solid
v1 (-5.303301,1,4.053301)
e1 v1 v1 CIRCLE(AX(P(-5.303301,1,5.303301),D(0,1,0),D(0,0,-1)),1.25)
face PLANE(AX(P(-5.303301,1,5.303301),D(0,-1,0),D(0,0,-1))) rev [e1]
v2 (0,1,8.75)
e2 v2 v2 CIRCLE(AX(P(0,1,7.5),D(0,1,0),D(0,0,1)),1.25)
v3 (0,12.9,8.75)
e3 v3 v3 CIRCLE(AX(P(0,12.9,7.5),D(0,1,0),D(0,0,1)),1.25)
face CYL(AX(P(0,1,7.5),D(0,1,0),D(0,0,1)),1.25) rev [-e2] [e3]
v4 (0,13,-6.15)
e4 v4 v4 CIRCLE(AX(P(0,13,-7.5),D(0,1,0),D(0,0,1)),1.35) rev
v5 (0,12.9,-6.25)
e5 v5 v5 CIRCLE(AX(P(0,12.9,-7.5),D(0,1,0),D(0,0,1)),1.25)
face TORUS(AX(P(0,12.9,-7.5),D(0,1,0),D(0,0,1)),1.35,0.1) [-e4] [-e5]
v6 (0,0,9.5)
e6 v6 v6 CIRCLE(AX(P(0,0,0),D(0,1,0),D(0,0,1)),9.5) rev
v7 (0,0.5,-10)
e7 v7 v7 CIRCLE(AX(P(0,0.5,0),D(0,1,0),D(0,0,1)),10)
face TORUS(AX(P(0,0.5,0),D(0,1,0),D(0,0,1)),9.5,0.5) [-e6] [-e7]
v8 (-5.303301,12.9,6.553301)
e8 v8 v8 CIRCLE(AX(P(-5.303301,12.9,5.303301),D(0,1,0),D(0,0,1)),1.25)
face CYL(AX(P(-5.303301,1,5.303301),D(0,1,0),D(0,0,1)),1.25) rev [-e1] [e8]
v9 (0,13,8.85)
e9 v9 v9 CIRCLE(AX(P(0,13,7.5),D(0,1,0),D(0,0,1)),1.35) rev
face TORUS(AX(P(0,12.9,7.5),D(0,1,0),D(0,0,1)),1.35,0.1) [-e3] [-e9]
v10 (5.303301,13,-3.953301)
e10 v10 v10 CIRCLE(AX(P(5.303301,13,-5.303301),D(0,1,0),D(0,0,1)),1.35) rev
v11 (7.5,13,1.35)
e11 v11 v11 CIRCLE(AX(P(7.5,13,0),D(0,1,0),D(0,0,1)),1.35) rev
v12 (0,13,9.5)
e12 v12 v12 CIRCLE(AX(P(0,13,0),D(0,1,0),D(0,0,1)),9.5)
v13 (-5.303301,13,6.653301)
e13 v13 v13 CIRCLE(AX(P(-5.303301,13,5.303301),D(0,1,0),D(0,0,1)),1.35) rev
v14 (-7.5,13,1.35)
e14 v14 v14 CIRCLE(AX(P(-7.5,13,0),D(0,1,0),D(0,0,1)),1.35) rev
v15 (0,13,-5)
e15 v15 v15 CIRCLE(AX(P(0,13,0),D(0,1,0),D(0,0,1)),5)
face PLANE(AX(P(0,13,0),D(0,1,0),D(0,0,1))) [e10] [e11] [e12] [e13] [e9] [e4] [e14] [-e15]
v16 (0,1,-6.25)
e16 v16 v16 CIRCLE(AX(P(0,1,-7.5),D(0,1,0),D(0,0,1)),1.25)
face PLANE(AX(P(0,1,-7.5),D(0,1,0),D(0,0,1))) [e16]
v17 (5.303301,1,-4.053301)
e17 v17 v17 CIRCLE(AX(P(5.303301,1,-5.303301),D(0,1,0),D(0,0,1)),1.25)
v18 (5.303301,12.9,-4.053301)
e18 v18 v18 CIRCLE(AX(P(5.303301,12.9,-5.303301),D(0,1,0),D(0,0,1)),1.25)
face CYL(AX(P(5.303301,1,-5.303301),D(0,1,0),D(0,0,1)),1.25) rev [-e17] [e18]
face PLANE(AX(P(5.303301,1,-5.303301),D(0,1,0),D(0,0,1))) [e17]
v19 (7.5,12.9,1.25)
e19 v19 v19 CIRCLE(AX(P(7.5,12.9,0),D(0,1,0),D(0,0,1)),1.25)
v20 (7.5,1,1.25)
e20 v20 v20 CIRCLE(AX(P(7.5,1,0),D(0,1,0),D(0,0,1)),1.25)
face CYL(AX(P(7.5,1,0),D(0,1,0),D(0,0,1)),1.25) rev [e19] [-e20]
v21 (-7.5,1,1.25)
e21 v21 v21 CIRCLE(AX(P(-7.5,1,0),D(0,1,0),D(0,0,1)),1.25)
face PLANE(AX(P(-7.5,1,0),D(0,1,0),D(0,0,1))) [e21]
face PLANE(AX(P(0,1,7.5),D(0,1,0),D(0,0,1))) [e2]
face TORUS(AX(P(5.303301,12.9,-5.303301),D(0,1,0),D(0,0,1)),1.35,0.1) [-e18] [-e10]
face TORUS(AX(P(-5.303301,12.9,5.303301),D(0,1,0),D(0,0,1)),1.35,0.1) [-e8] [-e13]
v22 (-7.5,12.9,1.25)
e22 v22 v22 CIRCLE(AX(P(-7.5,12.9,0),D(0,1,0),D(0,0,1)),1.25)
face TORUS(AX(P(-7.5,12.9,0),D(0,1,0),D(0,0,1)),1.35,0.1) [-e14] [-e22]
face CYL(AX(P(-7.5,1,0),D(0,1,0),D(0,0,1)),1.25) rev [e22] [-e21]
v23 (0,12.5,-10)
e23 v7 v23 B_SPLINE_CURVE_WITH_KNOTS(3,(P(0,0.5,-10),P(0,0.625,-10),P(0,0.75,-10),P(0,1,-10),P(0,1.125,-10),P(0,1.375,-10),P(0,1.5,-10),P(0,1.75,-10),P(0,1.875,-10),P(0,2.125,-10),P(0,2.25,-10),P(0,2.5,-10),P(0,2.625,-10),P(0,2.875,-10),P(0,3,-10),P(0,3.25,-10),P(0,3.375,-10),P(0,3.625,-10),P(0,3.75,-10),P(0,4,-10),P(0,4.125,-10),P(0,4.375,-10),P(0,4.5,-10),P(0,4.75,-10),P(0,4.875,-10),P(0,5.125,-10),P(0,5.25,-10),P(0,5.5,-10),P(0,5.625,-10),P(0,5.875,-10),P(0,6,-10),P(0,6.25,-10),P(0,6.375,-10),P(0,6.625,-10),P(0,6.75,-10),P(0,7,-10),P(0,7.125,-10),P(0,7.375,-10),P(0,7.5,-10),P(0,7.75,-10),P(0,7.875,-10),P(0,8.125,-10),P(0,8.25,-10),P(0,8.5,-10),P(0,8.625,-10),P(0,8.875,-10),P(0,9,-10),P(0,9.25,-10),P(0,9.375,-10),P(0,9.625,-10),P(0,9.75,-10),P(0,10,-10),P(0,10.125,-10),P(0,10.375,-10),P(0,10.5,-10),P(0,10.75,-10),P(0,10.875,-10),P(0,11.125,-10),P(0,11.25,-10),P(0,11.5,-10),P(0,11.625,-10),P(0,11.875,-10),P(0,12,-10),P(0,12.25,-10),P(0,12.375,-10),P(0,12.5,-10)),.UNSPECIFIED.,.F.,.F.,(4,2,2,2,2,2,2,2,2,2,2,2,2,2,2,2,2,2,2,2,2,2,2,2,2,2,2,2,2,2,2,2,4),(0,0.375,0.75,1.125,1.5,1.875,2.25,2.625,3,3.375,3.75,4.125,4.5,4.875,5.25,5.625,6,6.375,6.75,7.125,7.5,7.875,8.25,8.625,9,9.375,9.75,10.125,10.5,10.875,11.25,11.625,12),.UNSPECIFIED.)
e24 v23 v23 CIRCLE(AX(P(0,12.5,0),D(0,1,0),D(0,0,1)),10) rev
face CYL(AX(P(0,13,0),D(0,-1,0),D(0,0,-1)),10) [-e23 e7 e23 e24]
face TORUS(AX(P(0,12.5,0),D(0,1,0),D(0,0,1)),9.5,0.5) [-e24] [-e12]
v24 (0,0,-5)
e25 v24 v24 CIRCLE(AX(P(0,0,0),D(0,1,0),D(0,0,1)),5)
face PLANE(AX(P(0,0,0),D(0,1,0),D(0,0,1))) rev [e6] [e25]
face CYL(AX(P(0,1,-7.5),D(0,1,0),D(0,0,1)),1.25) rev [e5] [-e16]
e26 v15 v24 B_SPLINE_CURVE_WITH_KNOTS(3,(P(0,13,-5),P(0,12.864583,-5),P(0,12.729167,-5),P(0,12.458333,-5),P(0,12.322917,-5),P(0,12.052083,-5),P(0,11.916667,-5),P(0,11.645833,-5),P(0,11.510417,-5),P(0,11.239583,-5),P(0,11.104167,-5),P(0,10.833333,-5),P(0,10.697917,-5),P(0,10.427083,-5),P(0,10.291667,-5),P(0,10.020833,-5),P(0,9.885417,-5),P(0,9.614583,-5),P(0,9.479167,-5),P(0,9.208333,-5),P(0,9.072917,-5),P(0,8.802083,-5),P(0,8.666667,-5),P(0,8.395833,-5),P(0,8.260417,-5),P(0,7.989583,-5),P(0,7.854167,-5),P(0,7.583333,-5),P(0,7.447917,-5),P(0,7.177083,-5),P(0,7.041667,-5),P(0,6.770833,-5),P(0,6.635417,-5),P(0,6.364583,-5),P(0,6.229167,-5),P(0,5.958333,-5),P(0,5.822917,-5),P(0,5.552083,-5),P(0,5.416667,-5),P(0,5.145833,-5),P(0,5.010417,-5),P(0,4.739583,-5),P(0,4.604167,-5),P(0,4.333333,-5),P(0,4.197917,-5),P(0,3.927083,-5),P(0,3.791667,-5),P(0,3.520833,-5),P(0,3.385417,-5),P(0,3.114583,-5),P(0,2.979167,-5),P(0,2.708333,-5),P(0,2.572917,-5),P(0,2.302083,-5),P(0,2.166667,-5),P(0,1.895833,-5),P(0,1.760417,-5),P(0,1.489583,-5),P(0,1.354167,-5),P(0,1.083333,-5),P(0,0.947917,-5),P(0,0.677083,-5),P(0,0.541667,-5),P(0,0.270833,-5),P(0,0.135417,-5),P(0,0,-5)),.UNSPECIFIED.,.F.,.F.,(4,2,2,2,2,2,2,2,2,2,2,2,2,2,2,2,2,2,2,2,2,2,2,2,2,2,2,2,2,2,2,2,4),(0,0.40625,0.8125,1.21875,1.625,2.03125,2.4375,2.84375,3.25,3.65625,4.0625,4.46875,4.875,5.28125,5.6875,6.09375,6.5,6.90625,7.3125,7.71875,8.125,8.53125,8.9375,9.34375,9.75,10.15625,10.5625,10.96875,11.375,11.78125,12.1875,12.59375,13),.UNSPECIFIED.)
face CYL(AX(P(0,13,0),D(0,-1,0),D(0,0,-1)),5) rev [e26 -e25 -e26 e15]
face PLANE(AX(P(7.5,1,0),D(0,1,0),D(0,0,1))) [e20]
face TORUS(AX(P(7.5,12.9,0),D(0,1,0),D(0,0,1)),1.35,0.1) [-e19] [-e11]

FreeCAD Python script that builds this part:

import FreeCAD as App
import Part
import Sketcher
from FreeCAD import Vector
Q = App.Units.Quantity


def edges_at(feature, points):
    """Names of the edges that pass closest to the given points."""
    edges = feature.Shape.Edges
    near = lambda p: min(range(len(edges)), key=lambda i: edges[i].distToShape(Part.Vertex(*p))[0])
    return sorted({f"Edge{near(p) + 1}" for p in points})

doc = App.newDocument("Part")
body = doc.addObject("PartDesign::Body", "Body")

sketch1 = doc.addObject("Sketcher::SketchObject", "Sketch")
body.addObject(sketch1)
sketch1.AttachmentSupport = (doc.XZ_Plane, [""])
sketch1.MapMode = "FlatFace"
sketch1.addGeometry([
    Part.Circle(Vector(0, 0, 0), Vector(0, 0, 1), 10),
    Part.Circle(Vector(0, 0, 0), Vector(0, 0, 1), 5),
], False)
sketch1.addConstraint([
    Sketcher.Constraint("Coincident", 0, 3, -1, 1),
    Sketcher.Constraint("Coincident", 1, 3, -1, 1),
    Sketcher.Constraint("Diameter", 0, Q("20 mm")),
    Sketcher.Constraint("Diameter", 1, Q("10 mm")),
])
pad1 = doc.addObject("PartDesign::Pad", "Pad")
body.addObject(pad1)
pad1.Profile = sketch1
pad1.Length = 13
pad1.Reversed = True

sketch2 = doc.addObject("Sketcher::SketchObject", "Sketch001")
body.addObject(sketch2)
sketch2.AttachmentSupport = (doc.XZ_Plane, [""])
sketch2.MapMode = "FlatFace"
sketch2.AttachmentOffset = App.Placement(Vector(0, 0, -13), App.Rotation())
sketch2.addGeometry([
    Part.Circle(Vector(0, -7.5, 0), Vector(0, 0, 1), 1.2),
    Part.Circle(Vector(7.5, 0, 0), Vector(0, 0, 1), 1.2),
    Part.Circle(Vector(0, 7.5, 0), Vector(0, 0, 1), 1.2),
    Part.Circle(Vector(-7.5, 0, 0), Vector(0, 0, 1), 1.2),
    Part.Circle(Vector(5.3, -5.3, 0), Vector(0, 0, 1), 1.2),
    Part.Circle(Vector(-5.3, 5.3, 0), Vector(0, 0, 1), 1.2),
], False)
sketch2.addConstraint([
    Sketcher.Constraint("Equal", 0, 1),
    Sketcher.Constraint("Equal", 1, 2),
    Sketcher.Constraint("Equal", 2, 3),
    Sketcher.Constraint("Equal", 3, 4),
    Sketcher.Constraint("Equal", 4, 5),
    Sketcher.Constraint("Symmetric", 0, 3, 2, 3, -1, 1),
    Sketcher.Constraint("Symmetric", 1, 3, 3, 3, -1, 1),
    Sketcher.Constraint("Symmetric", 4, 3, 5, 3, -1, 1),
    Sketcher.Constraint("PointOnObject", 0, 3, -2),
    Sketcher.Constraint("PointOnObject", 1, 3, -1),
    Sketcher.Constraint("Diameter", 0, Q("2.5 mm")),
    Sketcher.Constraint("DistanceY", 0, 3, 2, 3, Q("15 mm")),
    Sketcher.Constraint("DistanceX", 3, 3, 1, 3, Q("15 mm")),
    Sketcher.Constraint("DistanceX", -1, 1, 4, 3, Q("5.303301 mm")),
    Sketcher.Constraint("DistanceY", 4, 3, -1, 1, Q("5.303301 mm")),
])
pocket1 = doc.addObject("PartDesign::Pocket", "Pocket")
body.addObject(pocket1)
pocket1.Profile = sketch2
pocket1.Length = 12
pocket1.Reversed = True
doc.recompute()

fillet = doc.addObject("PartDesign::Fillet", "Fillet")
body.addObject(fillet)
fillet.Base = (pocket1, edges_at(pocket1, [(0, 0, 10), (0, 13, 10)]))
fillet.Radius = 0.5
doc.recompute()

fillet2 = doc.addObject("PartDesign::Fillet", "Fillet001")
body.addObject(fillet2)
fillet2.Base = (fillet, edges_at(fillet, [
    (5.303, 13, -6.553),
    (-7.5, 13, -1.25),
    (0, 13, 6.25),
    (7.5, 13, -1.25),
    (-5.303, 13, 6.553),
    (0, 13, -8.75),
]))
fillet2.Radius = 0.1

doc.recompute()
